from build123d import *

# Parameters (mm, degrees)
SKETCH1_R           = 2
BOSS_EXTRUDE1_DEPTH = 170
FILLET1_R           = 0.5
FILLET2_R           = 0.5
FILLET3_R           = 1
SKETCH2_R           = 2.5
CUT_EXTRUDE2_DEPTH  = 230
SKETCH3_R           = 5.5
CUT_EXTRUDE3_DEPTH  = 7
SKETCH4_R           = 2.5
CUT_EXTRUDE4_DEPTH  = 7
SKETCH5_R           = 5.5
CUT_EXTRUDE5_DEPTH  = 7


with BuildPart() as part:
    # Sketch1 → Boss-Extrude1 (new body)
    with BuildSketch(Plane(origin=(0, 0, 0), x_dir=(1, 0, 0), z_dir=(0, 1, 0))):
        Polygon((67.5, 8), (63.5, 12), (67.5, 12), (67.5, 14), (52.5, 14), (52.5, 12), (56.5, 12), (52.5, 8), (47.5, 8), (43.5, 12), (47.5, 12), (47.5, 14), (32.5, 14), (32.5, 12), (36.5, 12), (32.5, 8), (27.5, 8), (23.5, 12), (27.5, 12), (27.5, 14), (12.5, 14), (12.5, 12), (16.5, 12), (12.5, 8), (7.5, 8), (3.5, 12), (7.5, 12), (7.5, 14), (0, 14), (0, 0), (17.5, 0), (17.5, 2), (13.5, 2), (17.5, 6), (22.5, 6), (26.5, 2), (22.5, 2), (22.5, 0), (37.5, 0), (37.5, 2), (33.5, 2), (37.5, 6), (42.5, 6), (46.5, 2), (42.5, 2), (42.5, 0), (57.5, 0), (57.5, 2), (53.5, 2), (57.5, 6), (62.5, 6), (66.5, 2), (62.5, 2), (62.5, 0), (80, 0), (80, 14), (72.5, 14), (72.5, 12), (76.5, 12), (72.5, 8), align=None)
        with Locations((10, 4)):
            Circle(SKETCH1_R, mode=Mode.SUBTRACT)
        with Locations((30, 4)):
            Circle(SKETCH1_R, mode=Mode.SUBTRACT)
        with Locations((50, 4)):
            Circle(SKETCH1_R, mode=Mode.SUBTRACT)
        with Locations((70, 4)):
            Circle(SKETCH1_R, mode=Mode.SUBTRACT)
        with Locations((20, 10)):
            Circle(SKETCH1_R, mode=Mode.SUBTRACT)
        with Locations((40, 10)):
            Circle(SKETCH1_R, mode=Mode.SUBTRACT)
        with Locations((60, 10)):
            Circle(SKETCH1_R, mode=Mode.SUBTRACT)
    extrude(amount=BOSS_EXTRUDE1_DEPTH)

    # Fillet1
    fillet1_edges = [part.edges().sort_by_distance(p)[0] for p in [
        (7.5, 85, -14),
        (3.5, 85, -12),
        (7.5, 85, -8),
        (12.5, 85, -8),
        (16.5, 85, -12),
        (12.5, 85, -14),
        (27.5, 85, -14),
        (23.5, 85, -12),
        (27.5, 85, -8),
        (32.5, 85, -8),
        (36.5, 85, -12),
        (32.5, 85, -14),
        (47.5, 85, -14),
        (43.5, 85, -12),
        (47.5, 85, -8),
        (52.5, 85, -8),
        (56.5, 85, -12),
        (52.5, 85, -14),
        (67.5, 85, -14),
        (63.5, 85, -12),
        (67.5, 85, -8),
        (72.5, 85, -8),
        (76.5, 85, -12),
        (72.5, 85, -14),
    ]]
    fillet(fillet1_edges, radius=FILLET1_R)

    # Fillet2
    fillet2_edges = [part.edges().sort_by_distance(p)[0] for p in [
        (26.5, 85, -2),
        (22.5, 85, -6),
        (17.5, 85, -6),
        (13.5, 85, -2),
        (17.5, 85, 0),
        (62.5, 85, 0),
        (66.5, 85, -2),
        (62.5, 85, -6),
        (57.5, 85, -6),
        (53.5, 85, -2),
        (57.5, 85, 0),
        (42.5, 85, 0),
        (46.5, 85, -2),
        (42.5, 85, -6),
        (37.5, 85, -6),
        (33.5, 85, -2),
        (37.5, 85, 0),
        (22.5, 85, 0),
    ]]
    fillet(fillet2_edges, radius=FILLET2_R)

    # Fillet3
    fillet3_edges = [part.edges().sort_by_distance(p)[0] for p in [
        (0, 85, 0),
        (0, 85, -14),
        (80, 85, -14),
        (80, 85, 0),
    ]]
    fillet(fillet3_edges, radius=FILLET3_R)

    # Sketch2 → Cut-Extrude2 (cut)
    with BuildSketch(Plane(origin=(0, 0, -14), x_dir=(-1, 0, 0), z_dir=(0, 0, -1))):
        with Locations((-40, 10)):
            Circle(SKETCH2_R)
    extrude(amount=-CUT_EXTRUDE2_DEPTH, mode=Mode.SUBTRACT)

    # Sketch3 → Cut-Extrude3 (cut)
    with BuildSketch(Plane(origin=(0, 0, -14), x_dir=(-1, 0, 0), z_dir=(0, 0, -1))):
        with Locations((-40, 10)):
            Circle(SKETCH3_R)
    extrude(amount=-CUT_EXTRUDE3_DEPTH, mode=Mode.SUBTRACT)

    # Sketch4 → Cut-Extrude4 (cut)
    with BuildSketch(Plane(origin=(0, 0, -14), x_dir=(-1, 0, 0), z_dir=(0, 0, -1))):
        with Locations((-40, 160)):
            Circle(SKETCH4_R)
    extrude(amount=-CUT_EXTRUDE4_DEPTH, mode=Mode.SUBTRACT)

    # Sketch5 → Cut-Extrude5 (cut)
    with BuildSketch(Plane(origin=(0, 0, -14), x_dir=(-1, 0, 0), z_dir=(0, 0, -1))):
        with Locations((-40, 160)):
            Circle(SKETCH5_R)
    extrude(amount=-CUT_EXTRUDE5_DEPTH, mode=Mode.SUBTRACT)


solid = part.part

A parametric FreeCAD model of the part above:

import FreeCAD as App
import Part
import Sketcher

V = App.Vector
Q = App.Units.Quantity


def edges_at(feature, points):
    """Names of the edges that pass closest to the given points."""
    edges = feature.Shape.Edges
    near = lambda p: min(range(len(edges)), key=lambda i: edges[i].distToShape(Part.Vertex(*p))[0])
    return sorted({f"Edge{near(p) + 1}" for p in points})

doc = App.newDocument("Part")
params = doc.addObject("Spreadsheet::Sheet", "Params")
for row, (alias, value) in enumerate([
    ("sketch1_diameter", "4 mm"),
    ("sketch1_width", "4 mm"),
    ("sketch1_width2", "15 mm"),
    ("sketch1_width3", "5 mm"),
    ("sketch1_height", "2 mm"),
    ("pad1_length", "170 mm"),
    ("fillet_radius", "0.5 mm"),
    ("fillet2_radius", "0.5 mm"),
    ("fillet3_radius", "1 mm"),
    ("sketch2_diameter", "5 mm"),
    ("pocket1_length", "230 mm"),
    ("sketch3_diameter", "11 mm"),
    ("pocket2_length", "7 mm"),
    ("sketch4_diameter", "5 mm"),
    ("pocket3_length", "7 mm"),
    ("sketch5_diameter", "11 mm"),
    ("pocket4_length", "7 mm"),
], start=1):
    params.set(f"A{row}", alias)
    params.set(f"B{row}", "=" + value)
    params.setAlias(f"B{row}", alias)

body = doc.addObject("PartDesign::Body", "Body")

sketch1 = body.newObject("Sketcher::SketchObject", "Sketch")
sketch1.AttachmentSupport = (doc.getObject("XZ_Plane"), [""])
sketch1.MapMode = "FlatFace"
sketch1.addGeometry(Part.LineSegment(V(67.5, -8, 0), V(63.5, -12, 0)), False)
sketch1.addGeometry(Part.LineSegment(V(63.5, -12, 0), V(67.5, -12, 0)), False)
sketch1.addGeometry(Part.LineSegment(V(67.5, -12, 0), V(67.5, -14, 0)), False)
sketch1.addGeometry(Part.LineSegment(V(67.5, -14, 0), V(52.5, -14, 0)), False)
sketch1.addGeometry(Part.LineSegment(V(52.5, -14, 0), V(52.5, -12, 0)), False)
sketch1.addGeometry(Part.LineSegment(V(52.5, -12, 0), V(56.5, -12, 0)), False)
sketch1.addGeometry(Part.LineSegment(V(56.5, -12, 0), V(52.5, -8, 0)), False)
sketch1.addGeometry(Part.LineSegment(V(52.5, -8, 0), V(47.5, -8, 0)), False)
sketch1.addGeometry(Part.LineSegment(V(47.5, -8, 0), V(43.5, -12, 0)), False)
sketch1.addGeometry(Part.LineSegment(V(43.5, -12, 0), V(47.5, -12, 0)), False)
sketch1.addGeometry(Part.LineSegment(V(47.5, -12, 0), V(47.5, -14, 0)), False)
sketch1.addGeometry(Part.LineSegment(V(47.5, -14, 0), V(32.5, -14, 0)), False)
sketch1.addGeometry(Part.LineSegment(V(32.5, -14, 0), V(32.5, -12, 0)), False)
sketch1.addGeometry(Part.LineSegment(V(32.5, -12, 0), V(36.5, -12, 0)), False)
sketch1.addGeometry(Part.LineSegment(V(36.5, -12, 0), V(32.5, -8, 0)), False)
sketch1.addGeometry(Part.LineSegment(V(32.5, -8, 0), V(27.5, -8, 0)), False)
sketch1.addGeometry(Part.LineSegment(V(27.5, -8, 0), V(23.5, -12, 0)), False)
sketch1.addGeometry(Part.LineSegment(V(23.5, -12, 0), V(27.5, -12, 0)), False)
sketch1.addGeometry(Part.LineSegment(V(27.5, -12, 0), V(27.5, -14, 0)), False)
sketch1.addGeometry(Part.LineSegment(V(27.5, -14, 0), V(12.5, -14, 0)), False)
sketch1.addGeometry(Part.LineSegment(V(12.5, -14, 0), V(12.5, -12, 0)), False)
sketch1.addGeometry(Part.LineSegment(V(12.5, -12, 0), V(16.5, -12, 0)), False)
sketch1.addGeometry(Part.LineSegment(V(16.5, -12, 0), V(12.5, -8, 0)), False)
sketch1.addGeometry(Part.LineSegment(V(12.5, -8, 0), V(7.5, -8, 0)), False)
sketch1.addGeometry(Part.LineSegment(V(7.5, -8, 0), V(3.5, -12, 0)), False)
sketch1.addGeometry(Part.LineSegment(V(3.5, -12, 0), V(7.5, -12, 0)), False)
sketch1.addGeometry(Part.LineSegment(V(7.5, -12, 0), V(7.5, -14, 0)), False)
sketch1.addGeometry(Part.LineSegment(V(7.5, -14, 0), V(0, -14, 0)), False)
sketch1.addGeometry(Part.LineSegment(V(0, -14, 0), V(0, 0, 0)), False)
sketch1.addGeometry(Part.LineSegment(V(0, 0, 0), V(17.5, 0, 0)), False)
sketch1.addGeometry(Part.LineSegment(V(17.5, 0, 0), V(17.5, -2, 0)), False)
sketch1.addGeometry(Part.LineSegment(V(17.5, -2, 0), V(13.5, -2, 0)), False)
sketch1.addGeometry(Part.LineSegment(V(13.5, -2, 0), V(17.5, -6, 0)), False)
sketch1.addGeometry(Part.LineSegment(V(17.5, -6, 0), V(22.5, -6, 0)), False)
sketch1.addGeometry(Part.LineSegment(V(22.5, -6, 0), V(26.5, -2, 0)), False)
sketch1.addGeometry(Part.LineSegment(V(26.5, -2, 0), V(22.5, -2, 0)), False)
sketch1.addGeometry(Part.LineSegment(V(22.5, -2, 0), V(22.5, 0, 0)), False)
sketch1.addGeometry(Part.LineSegment(V(22.5, 0, 0), V(37.5, 0, 0)), False)
sketch1.addGeometry(Part.LineSegment(V(37.5, 0, 0), V(37.5, -2, 0)), False)
sketch1.addGeometry(Part.LineSegment(V(37.5, -2, 0), V(33.5, -2, 0)), False)
sketch1.addGeometry(Part.LineSegment(V(33.5, -2, 0), V(37.5, -6, 0)), False)
sketch1.addGeometry(Part.LineSegment(V(37.5, -6, 0), V(42.5, -6, 0)), False)
sketch1.addGeometry(Part.LineSegment(V(42.5, -6, 0), V(46.5, -2, 0)), False)
sketch1.addGeometry(Part.LineSegment(V(46.5, -2, 0), V(42.5, -2, 0)), False)
sketch1.addGeometry(Part.LineSegment(V(42.5, -2, 0), V(42.5, 0, 0)), False)
sketch1.addGeometry(Part.LineSegment(V(42.5, 0, 0), V(57.5, 0, 0)), False)
sketch1.addGeometry(Part.LineSegment(V(57.5, 0, 0), V(57.5, -2, 0)), False)
sketch1.addGeometry(Part.LineSegment(V(57.5, -2, 0), V(53.5, -2, 0)), False)
sketch1.addGeometry(Part.LineSegment(V(53.5, -2, 0), V(57.5, -6, 0)), False)
sketch1.addGeometry(Part.LineSegment(V(57.5, -6, 0), V(62.5, -6, 0)), False)
sketch1.addGeometry(Part.LineSegment(V(62.5, -6, 0), V(66.5, -2, 0)), False)
sketch1.addGeometry(Part.LineSegment(V(66.5, -2, 0), V(62.5, -2, 0)), False)
sketch1.addGeometry(Part.LineSegment(V(62.5, -2, 0), V(62.5, 0, 0)), False)
sketch1.addGeometry(Part.LineSegment(V(62.5, 0, 0), V(80, 0, 0)), False)
sketch1.addGeometry(Part.LineSegment(V(80, 0, 0), V(80, -14, 0)), False)
sketch1.addGeometry(Part.LineSegment(V(80, -14, 0), V(72.5, -14, 0)), False)
sketch1.addGeometry(Part.LineSegment(V(72.5, -14, 0), V(72.5, -12, 0)), False)
sketch1.addGeometry(Part.LineSegment(V(72.5, -12, 0), V(76.5, -12, 0)), False)
sketch1.addGeometry(Part.LineSegment(V(76.5, -12, 0), V(72.5, -8, 0)), False)
sketch1.addGeometry(Part.LineSegment(V(72.5, -8, 0), V(67.5, -8, 0)), False)
sketch1.addGeometry(Part.Circle(V(10, -4, 0), V(0, 0, 1), 2), False)
sketch1.addGeometry(Part.Circle(V(30, -4, 0), V(0, 0, 1), 2), False)
sketch1.addGeometry(Part.Circle(V(50, -4, 0), V(0, 0, 1), 2), False)
sketch1.addGeometry(Part.Circle(V(70, -4, 0), V(0, 0, 1), 2), False)
sketch1.addGeometry(Part.Circle(V(20, -10, 0), V(0, 0, 1), 2), False)
sketch1.addGeometry(Part.Circle(V(40, -10, 0), V(0, 0, 1), 2), False)
sketch1.addGeometry(Part.Circle(V(60, -10, 0), V(0, 0, 1), 2), False)
sketch1.addConstraint(Sketcher.Constraint("Coincident", 0, 2, 1, 1))
sketch1.addConstraint(Sketcher.Constraint("Coincident", 1, 2, 2, 1))
sketch1.addConstraint(Sketcher.Constraint("Coincident", 2, 2, 3, 1))
sketch1.addConstraint(Sketcher.Constraint("Coincident", 3, 2, 4, 1))
sketch1.addConstraint(Sketcher.Constraint("Coincident", 4, 2, 5, 1))
sketch1.addConstraint(Sketcher.Constraint("Coincident", 5, 2, 6, 1))
sketch1.addConstraint(Sketcher.Constraint("Coincident", 6, 2, 7, 1))
sketch1.addConstraint(Sketcher.Constraint("Coincident", 7, 2, 8, 1))
sketch1.addConstraint(Sketcher.Constraint("Coincident", 8, 2, 9, 1))
sketch1.addConstraint(Sketcher.Constraint("Coincident", 9, 2, 10, 1))
sketch1.addConstraint(Sketcher.Constraint("Coincident", 10, 2, 11, 1))
sketch1.addConstraint(Sketcher.Constraint("Coincident", 11, 2, 12, 1))
sketch1.addConstraint(Sketcher.Constraint("Coincident", 12, 2, 13, 1))
sketch1.addConstraint(Sketcher.Constraint("Coincident", 13, 2, 14, 1))
sketch1.addConstraint(Sketcher.Constraint("Coincident", 14, 2, 15, 1))
sketch1.addConstraint(Sketcher.Constraint("Coincident", 15, 2, 16, 1))
sketch1.addConstraint(Sketcher.Constraint("Coincident", 16, 2, 17, 1))
sketch1.addConstraint(Sketcher.Constraint("Coincident", 17, 2, 18, 1))
sketch1.addConstraint(Sketcher.Constraint("Coincident", 18, 2, 19, 1))
sketch1.addConstraint(Sketcher.Constraint("Coincident", 19, 2, 20, 1))
sketch1.addConstraint(Sketcher.Constraint("Coincident", 20, 2, 21, 1))
sketch1.addConstraint(Sketcher.Constraint("Coincident", 21, 2, 22, 1))
sketch1.addConstraint(Sketcher.Constraint("Coincident", 22, 2, 23, 1))
sketch1.addConstraint(Sketcher.Constraint("Coincident", 23, 2, 24, 1))
sketch1.addConstraint(Sketcher.Constraint("Coincident", 24, 2, 25, 1))
sketch1.addConstraint(Sketcher.Constraint("Coincident", 25, 2, 26, 1))
sketch1.addConstraint(Sketcher.Constraint("Coincident", 26, 2, 27, 1))
sketch1.addConstraint(Sketcher.Constraint("Coincident", 27, 2, 28, 1))
sketch1.addConstraint(Sketcher.Constraint("Coincident", 28, 2, 29, 1))
sketch1.addConstraint(Sketcher.Constraint("Coincident", 29, 2, 30, 1))
sketch1.addConstraint(Sketcher.Constraint("Coincident", 30, 2, 31, 1))
sketch1.addConstraint(Sketcher.Constraint("Coincident", 31, 2, 32, 1))
sketch1.addConstraint(Sketcher.Constraint("Coincident", 32, 2, 33, 1))
sketch1.addConstraint(Sketcher.Constraint("Coincident", 33, 2, 34, 1))
sketch1.addConstraint(Sketcher.Constraint("Coincident", 34, 2, 35, 1))
sketch1.addConstraint(Sketcher.Constraint("Coincident", 35, 2, 36, 1))
sketch1.addConstraint(Sketcher.Constraint("Coincident", 36, 2, 37, 1))
sketch1.addConstraint(Sketcher.Constraint("Coincident", 37, 2, 38, 1))
sketch1.addConstraint(Sketcher.Constraint("Coincident", 38, 2, 39, 1))
sketch1.addConstraint(Sketcher.Constraint("Coincident", 39, 2, 40, 1))
sketch1.addConstraint(Sketcher.Constraint("Coincident", 40, 2, 41, 1))
sketch1.addConstraint(Sketcher.Constraint("Coincident", 41, 2, 42, 1))
sketch1.addConstraint(Sketcher.Constraint("Coincident", 42, 2, 43, 1))
sketch1.addConstraint(Sketcher.Constraint("Coincident", 43, 2, 44, 1))
sketch1.addConstraint(Sketcher.Constraint("Coincident", 44, 2, 45, 1))
sketch1.addConstraint(Sketcher.Constraint("Coincident", 45, 2, 46, 1))
sketch1.addConstraint(Sketcher.Constraint("Coincident", 46, 2, 47, 1))
sketch1.addConstraint(Sketcher.Constraint("Coincident", 47, 2, 48, 1))
sketch1.addConstraint(Sketcher.Constraint("Coincident", 48, 2, 49, 1))
sketch1.addConstraint(Sketcher.Constraint("Coincident", 49, 2, 50, 1))
sketch1.addConstraint(Sketcher.Constraint("Coincident", 50, 2, 51, 1))
sketch1.addConstraint(Sketcher.Constraint("Coincident", 51, 2, 52, 1))
sketch1.addConstraint(Sketcher.Constraint("Coincident", 52, 2, 53, 1))
sketch1.addConstraint(Sketcher.Constraint("Coincident", 53, 2, 54, 1))
sketch1.addConstraint(Sketcher.Constraint("Coincident", 54, 2, 55, 1))
sketch1.addConstraint(Sketcher.Constraint("Coincident", 55, 2, 56, 1))
sketch1.addConstraint(Sketcher.Constraint("Coincident", 56, 2, 57, 1))
sketch1.addConstraint(Sketcher.Constraint("Coincident", 57, 2, 58, 1))
sketch1.addConstraint(Sketcher.Constraint("Coincident", 58, 2, 59, 1))
sketch1.addConstraint(Sketcher.Constraint("Coincident", 59, 2, 0, 1))
sketch1.addConstraint(Sketcher.Constraint("Horizontal", 1))
sketch1.addConstraint(Sketcher.Constraint("Vertical", 2))
sketch1.addConstraint(Sketcher.Constraint("Horizontal", 3))
sketch1.addConstraint(Sketcher.Constraint("Vertical", 4))
sketch1.addConstraint(Sketcher.Constraint("Horizontal", 5))
sketch1.addConstraint(Sketcher.Constraint("Horizontal", 7))
sketch1.addConstraint(Sketcher.Constraint("Horizontal", 9))
sketch1.addConstraint(Sketcher.Constraint("Vertical", 10))
sketch1.addConstraint(Sketcher.Constraint("Horizontal", 11))
sketch1.addConstraint(Sketcher.Constraint("Vertical", 12))
sketch1.addConstraint(Sketcher.Constraint("Horizontal", 13))
sketch1.addConstraint(Sketcher.Constraint("Horizontal", 15))
sketch1.addConstraint(Sketcher.Constraint("Horizontal", 17))
sketch1.addConstraint(Sketcher.Constraint("Vertical", 18))
sketch1.addConstraint(Sketcher.Constraint("Horizontal", 19))
sketch1.addConstraint(Sketcher.Constraint("Vertical", 20))
sketch1.addConstraint(Sketcher.Constraint("Horizontal", 21))
sketch1.addConstraint(Sketcher.Constraint("Horizontal", 23))
sketch1.addConstraint(Sketcher.Constraint("Horizontal", 25))
sketch1.addConstraint(Sketcher.Constraint("Vertical", 26))
sketch1.addConstraint(Sketcher.Constraint("Horizontal", 27))
sketch1.addConstraint(Sketcher.Constraint("Vertical", 28))
sketch1.addConstraint(Sketcher.Constraint("Horizontal", 29))
sketch1.addConstraint(Sketcher.Constraint("Vertical", 30))
sketch1.addConstraint(Sketcher.Constraint("Horizontal", 31))
sketch1.addConstraint(Sketcher.Constraint("Horizontal", 33))
sketch1.addConstraint(Sketcher.Constraint("Horizontal", 35))
sketch1.addConstraint(Sketcher.Constraint("Vertical", 36))
sketch1.addConstraint(Sketcher.Constraint("Horizontal", 37))
sketch1.addConstraint(Sketcher.Constraint("Vertical", 38))
sketch1.addConstraint(Sketcher.Constraint("Horizontal", 39))
sketch1.addConstraint(Sketcher.Constraint("Horizontal", 41))
sketch1.addConstraint(Sketcher.Constraint("Horizontal", 43))
sketch1.addConstraint(Sketcher.Constraint("Vertical", 44))
sketch1.addConstraint(Sketcher.Constraint("Horizontal", 45))
sketch1.addConstraint(Sketcher.Constraint("Vertical", 46))
sketch1.addConstraint(Sketcher.Constraint("Horizontal", 47))
sketch1.addConstraint(Sketcher.Constraint("Horizontal", 49))
sketch1.addConstraint(Sketcher.Constraint("Horizontal", 51))
sketch1.addConstraint(Sketcher.Constraint("Vertical", 52))
sketch1.addConstraint(Sketcher.Constraint("Horizontal", 53))
sketch1.addConstraint(Sketcher.Constraint("Vertical", 54))
sketch1.addConstraint(Sketcher.Constraint("Horizontal", 55))
sketch1.addConstraint(Sketcher.Constraint("Vertical", 56))
sketch1.addConstraint(Sketcher.Constraint("Horizontal", 57))
sketch1.addConstraint(Sketcher.Constraint("Horizontal", 59))
sketch1.addConstraint(Sketcher.Constraint("Coincident", 28, 2, -1, 1))
sketch1.addConstraint(Sketcher.Constraint("Equal", 60, 61))
sketch1.addConstraint(Sketcher.Constraint("Equal", 61, 62))
sketch1.addConstraint(Sketcher.Constraint("Equal", 62, 63))
sketch1.addConstraint(Sketcher.Constraint("Equal", 63, 64))
sketch1.addConstraint(Sketcher.Constraint("Equal", 64, 65))
sketch1.addConstraint(Sketcher.Constraint("Equal", 65, 66))
sketch1.addConstraint(Sketcher.Constraint("PointOnObject", 36, 2, -1))
sketch1.addConstraint(Sketcher.Constraint("PointOnObject", 44, 2, -1))
sketch1.addConstraint(Sketcher.Constraint("PointOnObject", 52, 2, -1))
sketch1.addConstraint(Sketcher.Constraint("Perpendicular", 0, 6))
sketch1.addConstraint(Sketcher.Constraint("Perpendicular", 6, 8))
sketch1.addConstraint(Sketcher.Constraint("Perpendicular", 8, 14))
sketch1.addConstraint(Sketcher.Constraint("Perpendicular", 14, 16))
sketch1.addConstraint(Sketcher.Constraint("Perpendicular", 16, 22))
sketch1.addConstraint(Sketcher.Constraint("Perpendicular", 22, 24))
sketch1.addConstraint(Sketcher.Constraint("Perpendicular", 24, 32))
sketch1.addConstraint(Sketcher.Constraint("Perpendicular", 32, 34))
sketch1.addConstraint(Sketcher.Constraint("Perpendicular", 34, 40))
sketch1.addConstraint(Sketcher.Constraint("Perpendicular", 40, 42))
sketch1.addConstraint(Sketcher.Constraint("Perpendicular", 42, 48))
sketch1.addConstraint(Sketcher.Constraint("Perpendicular", 48, 50))
sketch1.addConstraint(Sketcher.Constraint("Perpendicular", 50, 58))
sketch1.addConstraint(Sketcher.Constraint("Horizontal", 60, 3, 61, 3))
sketch1.addConstraint(Sketcher.Constraint("Horizontal", 61, 3, 62, 3))
sketch1.addConstraint(Sketcher.Constraint("Horizontal", 62, 3, 63, 3))
sketch1.addConstraint(Sketcher.Constraint("Horizontal", 64, 3, 65, 3))
sketch1.addConstraint(Sketcher.Constraint("Horizontal", 65, 3, 66, 3))
sketch1.addConstraint(Sketcher.Constraint("Horizontal", 1, 2, 4, 2))
sketch1.addConstraint(Sketcher.Constraint("Horizontal", 5, 2, 8, 2))
sketch1.addConstraint(Sketcher.Constraint("Horizontal", 3, 2, 10, 2))
sketch1.addConstraint(Sketcher.Constraint("Horizontal", 9, 2, 12, 2))
sketch1.addConstraint(Sketcher.Constraint("Horizontal", 7, 2, 14, 2))
sketch1.addConstraint(Sketcher.Constraint("Horizontal", 13, 2, 16, 2))
sketch1.addConstraint(Sketcher.Constraint("Horizontal", 11, 2, 18, 2))
sketch1.addConstraint(Sketcher.Constraint("Horizontal", 17, 2, 20, 2))
sketch1.addConstraint(Sketcher.Constraint("Horizontal", 15, 2, 22, 2))
sketch1.addConstraint(Sketcher.Constraint("Horizontal", 21, 2, 24, 2))
sketch1.addConstraint(Sketcher.Constraint("Horizontal", 19, 2, 26, 2))
sketch1.addConstraint(Sketcher.Constraint("Horizontal", 31, 2, 34, 2))
sketch1.addConstraint(Sketcher.Constraint("Horizontal", 35, 2, 38, 2))
sketch1.addConstraint(Sketcher.Constraint("Horizontal", 33, 2, 40, 2))
sketch1.addConstraint(Sketcher.Constraint("Horizontal", 39, 2, 42, 2))
sketch1.addConstraint(Sketcher.Constraint("Horizontal", 43, 2, 46, 2))
sketch1.addConstraint(Sketcher.Constraint("Horizontal", 41, 2, 48, 2))
sketch1.addConstraint(Sketcher.Constraint("Horizontal", 47, 2, 50, 2))
sketch1.addConstraint(Sketcher.Constraint("Horizontal", 27, 2, 54, 2))
sketch1.addConstraint(Sketcher.Constraint("Horizontal", 25, 2, 56, 2))
sketch1.addConstraint(Sketcher.Constraint("Horizontal", 23, 2, 58, 2))
sketch1.addConstraint(Sketcher.Constraint("Vertical", 4, 2, 6, 2))
sketch1.addConstraint(Sketcher.Constraint("Vertical", 7, 2, 9, 2))
sketch1.addConstraint(Sketcher.Constraint("Vertical", 12, 2, 14, 2))
sketch1.addConstraint(Sketcher.Constraint("Vertical", 15, 2, 17, 2))
sketch1.addConstraint(Sketcher.Constraint("Vertical", 20, 2, 22, 2))
sketch1.addConstraint(Sketcher.Constraint("Vertical", 23, 2, 25, 2))
sketch1.addConstraint(Sketcher.Constraint("Vertical", 30, 2, 32, 2))
sketch1.addConstraint(Sketcher.Constraint("Vertical", 33, 2, 35, 2))
sketch1.addConstraint(Sketcher.Constraint("Vertical", 38, 2, 40, 2))
sketch1.addConstraint(Sketcher.Constraint("Vertical", 41, 2, 43, 2))
sketch1.addConstraint(Sketcher.Constraint("Vertical", 46, 2, 48, 2))
sketch1.addConstraint(Sketcher.Constraint("Vertical", 49, 2, 51, 2))
sketch1.addConstraint(Sketcher.Constraint("Vertical", 56, 2, 58, 2))
sketch1.addConstraint(Sketcher.Constraint("Vertical", 2, 2, 59, 2))
sketch1.addConstraint(Sketcher.Constraint("Equal", 1, 5))
sketch1.addConstraint(Sketcher.Constraint("Equal", 3, 11))
sketch1.addConstraint(Sketcher.Constraint("Equal", 7, 15))
sketch1.addConstraint(Sketcher.Constraint("Equal", 11, 19))
sketch1.addConstraint(Sketcher.Constraint("Equal", 15, 23))
sketch1.addConstraint(Sketcher.Constraint("Equal", 25, 31))
sketch1.addConstraint(Sketcher.Constraint("Equal", 23, 33))
sketch1.addConstraint(Sketcher.Constraint("Equal", 19, 37))
sketch1.addConstraint(Sketcher.Constraint("Equal", 33, 41))
sketch1.addConstraint(Sketcher.Constraint("Equal", 37, 45))
sketch1.addConstraint(Sketcher.Constraint("Equal", 41, 49))
sketch1.addConstraint(Sketcher.Constraint("Equal", 29, 53))
sketch1.addConstraint(Sketcher.Constraint("Equal", 27, 55))
sketch1.addConstraint(Sketcher.Constraint("Equal", 49, 59))
sketch1.addConstraint(Sketcher.Constraint("Equal", 26, 30))
sketch1.addConstraint(Sketcher.Constraint("Diameter", 60, Q("4 mm")))
sketch1.addConstraint(Sketcher.Constraint("DistanceX", 1, 1, 1, 2, Q("4 mm")))
sketch1.addConstraint(Sketcher.Constraint("DistanceX", 3, 2, 3, 1, Q("15 mm")))
sketch1.addConstraint(Sketcher.Constraint("DistanceX", 7, 2, 7, 1, Q("5 mm")))
sketch1.addConstraint(Sketcher.Constraint("DistanceY", 2, 2, 2, 1, Q("2 mm")))
sketch1.addConstraint(Sketcher.Constraint("DistanceY", 28, 1, 28, 2, Q("14 mm")))
sketch1.addConstraint(Sketcher.Constraint("DistanceX", 27, 2, 27, 1, Q("7.5 mm")))
sketch1.addConstraint(Sketcher.Constraint("DistanceX", -1, 1, 60, 3, Q("10 mm")))
sketch1.addConstraint(Sketcher.Constraint("DistanceY", 60, 3, -1, 1, Q("4 mm")))
sketch1.addConstraint(Sketcher.Constraint("DistanceX", -1, 1, 61, 3, Q("30 mm")))
sketch1.addConstraint(Sketcher.Constraint("DistanceX", -1, 1, 62, 3, Q("50 mm")))
sketch1.addConstraint(Sketcher.Constraint("DistanceX", -1, 1, 63, 3, Q("70 mm")))
sketch1.addConstraint(Sketcher.Constraint("DistanceX", -1, 1, 64, 3, Q("20 mm")))
sketch1.addConstraint(Sketcher.Constraint("DistanceY", 64, 3, -1, 1, Q("10 mm")))
sketch1.addConstraint(Sketcher.Constraint("DistanceX", -1, 1, 65, 3, Q("40 mm")))
sketch1.addConstraint(Sketcher.Constraint("DistanceX", -1, 1, 66, 3, Q("60 mm")))
sketch1.setExpression("Constraints[184]", "Params.sketch1_diameter")
sketch1.setExpression("Constraints[185]", "Params.sketch1_width")
sketch1.setExpression("Constraints[186]", "Params.sketch1_width2")
sketch1.setExpression("Constraints[187]", "Params.sketch1_width3")
sketch1.setExpression("Constraints[188]", "Params.sketch1_height")
pad1 = body.newObject("PartDesign::Pad", "Pad")
pad1.Profile = sketch1
pad1.setExpression("Length", "Params.pad1_length")
pad1.Reversed = True
doc.recompute()

fillet = body.newObject("PartDesign::Fillet", "Fillet")
fillet.Base = (pad1, edges_at(pad1, [
    (7.5, 85, -14),
    (3.5, 85, -12),
    (7.5, 85, -8),
    (12.5, 85, -8),
    (16.5, 85, -12),
    (12.5, 85, -14),
    (27.5, 85, -14),
    (23.5, 85, -12),
    (27.5, 85, -8),
    (32.5, 85, -8),
    (36.5, 85, -12),
    (32.5, 85, -14),
    (47.5, 85, -14),
    (43.5, 85, -12),
    (47.5, 85, -8),
    (52.5, 85, -8),
    (56.5, 85, -12),
    (52.5, 85, -14),
    (67.5, 85, -14),
    (63.5, 85, -12),
    (67.5, 85, -8),
    (72.5, 85, -8),
    (76.5, 85, -12),
    (72.5, 85, -14),
]))
fillet.setExpression("Radius", "Params.fillet_radius")
doc.recompute()

fillet2 = body.newObject("PartDesign::Fillet", "Fillet001")
fillet2.Base = (fillet, edges_at(fillet, [
    (26.5, 85, -2),
    (22.5, 85, -6),
    (17.5, 85, -6),
    (13.5, 85, -2),
    (17.5, 85, 0),
    (62.5, 85, 0),
    (66.5, 85, -2),
    (62.5, 85, -6),
    (57.5, 85, -6),
    (53.5, 85, -2),
    (57.5, 85, 0),
    (42.5, 85, 0),
    (46.5, 85, -2),
    (42.5, 85, -6),
    (37.5, 85, -6),
    (33.5, 85, -2),
    (37.5, 85, 0),
    (22.5, 85, 0),
]))
fillet2.setExpression("Radius", "Params.fillet2_radius")
doc.recompute()

fillet3 = body.newObject("PartDesign::Fillet", "Fillet002")
fillet3.Base = (fillet2, edges_at(fillet2, [
    (0, 85, 0),
    (0, 85, -14),
    (80, 85, -14),
    (80, 85, 0),
]))
fillet3.setExpression("Radius", "Params.fillet3_radius")

sketch2 = body.newObject("Sketcher::SketchObject", "Sketch001")
sketch2.AttachmentSupport = (doc.getObject("XY_Plane"), [""])
sketch2.MapMode = "FlatFace"
sketch2.AttachmentOffset = App.Placement(V(0, 0, -14), App.Rotation())
sketch2.addGeometry(Part.Circle(V(40, 10, 0), V(0, 0, 1), 2.5), False)
sketch2.addConstraint(Sketcher.Constraint("Diameter", 0, Q("5 mm")))
sketch2.addConstraint(Sketcher.Constraint("DistanceX", -1, 1, 0, 3, Q("40 mm")))
sketch2.addConstraint(Sketcher.Constraint("DistanceY", -1, 1, 0, 3, Q("10 mm")))
sketch2.setExpression("Constraints[0]", "Params.sketch2_diameter")
pocket1 = body.newObject("PartDesign::Pocket", "Pocket")
pocket1.Profile = sketch2
pocket1.setExpression("Length", "Params.pocket1_length")
pocket1.Reversed = True

sketch3 = body.newObject("Sketcher::SketchObject", "Sketch002")
sketch3.AttachmentSupport = (doc.getObject("XY_Plane"), [""])
sketch3.MapMode = "FlatFace"
sketch3.AttachmentOffset = App.Placement(V(0, 0, -14), App.Rotation())
sketch3.addGeometry(Part.Circle(V(40, 10, 0), V(0, 0, 1), 5.5), False)
sketch3.addConstraint(Sketcher.Constraint("Diameter", 0, Q("11 mm")))
sketch3.addConstraint(Sketcher.Constraint("DistanceX", -1, 1, 0, 3, Q("40 mm")))
sketch3.addConstraint(Sketcher.Constraint("DistanceY", -1, 1, 0, 3, Q("10 mm")))
sketch3.setExpression("Constraints[0]", "Params.sketch3_diameter")
pocket2 = body.newObject("PartDesign::Pocket", "Pocket001")
pocket2.Profile = sketch3
pocket2.setExpression("Length", "Params.pocket2_length")
pocket2.Reversed = True

sketch4 = body.newObject("Sketcher::SketchObject", "Sketch003")
sketch4.AttachmentSupport = (doc.getObject("XY_Plane"), [""])
sketch4.MapMode = "FlatFace"
sketch4.AttachmentOffset = App.Placement(V(0, 0, -14), App.Rotation())
sketch4.addGeometry(Part.Circle(V(40, 160, 0), V(0, 0, 1), 2.5), False)
sketch4.addConstraint(Sketcher.Constraint("Diameter", 0, Q("5 mm")))
sketch4.addConstraint(Sketcher.Constraint("DistanceX", -1, 1, 0, 3, Q("40 mm")))
sketch4.addConstraint(Sketcher.Constraint("DistanceY", -1, 1, 0, 3, Q("160 mm")))
sketch4.setExpression("Constraints[0]", "Params.sketch4_diameter")
pocket3 = body.newObject("PartDesign::Pocket", "Pocket002")
pocket3.Profile = sketch4
pocket3.setExpression("Length", "Params.pocket3_length")
pocket3.Reversed = True

sketch5 = body.newObject("Sketcher::SketchObject", "Sketch004")
sketch5.AttachmentSupport = (doc.getObject("XY_Plane"), [""])
sketch5.MapMode = "FlatFace"
sketch5.AttachmentOffset = App.Placement(V(0, 0, -14), App.Rotation())
sketch5.addGeometry(Part.Circle(V(40, 160, 0), V(0, 0, 1), 5.5), False)
sketch5.addConstraint(Sketcher.Constraint("Diameter", 0, Q("11 mm")))
sketch5.addConstraint(Sketcher.Constraint("DistanceX", -1, 1, 0, 3, Q("40 mm")))
sketch5.addConstraint(Sketcher.Constraint("DistanceY", -1, 1, 0, 3, Q("160 mm")))
sketch5.setExpression("Constraints[0]", "Params.sketch5_diameter")
pocket4 = body.newObject("PartDesign::Pocket", "Pocket003")
pocket4.Profile = sketch5
pocket4.setExpression("Length", "Params.pocket4_length")
pocket4.Reversed = True

doc.recompute()
